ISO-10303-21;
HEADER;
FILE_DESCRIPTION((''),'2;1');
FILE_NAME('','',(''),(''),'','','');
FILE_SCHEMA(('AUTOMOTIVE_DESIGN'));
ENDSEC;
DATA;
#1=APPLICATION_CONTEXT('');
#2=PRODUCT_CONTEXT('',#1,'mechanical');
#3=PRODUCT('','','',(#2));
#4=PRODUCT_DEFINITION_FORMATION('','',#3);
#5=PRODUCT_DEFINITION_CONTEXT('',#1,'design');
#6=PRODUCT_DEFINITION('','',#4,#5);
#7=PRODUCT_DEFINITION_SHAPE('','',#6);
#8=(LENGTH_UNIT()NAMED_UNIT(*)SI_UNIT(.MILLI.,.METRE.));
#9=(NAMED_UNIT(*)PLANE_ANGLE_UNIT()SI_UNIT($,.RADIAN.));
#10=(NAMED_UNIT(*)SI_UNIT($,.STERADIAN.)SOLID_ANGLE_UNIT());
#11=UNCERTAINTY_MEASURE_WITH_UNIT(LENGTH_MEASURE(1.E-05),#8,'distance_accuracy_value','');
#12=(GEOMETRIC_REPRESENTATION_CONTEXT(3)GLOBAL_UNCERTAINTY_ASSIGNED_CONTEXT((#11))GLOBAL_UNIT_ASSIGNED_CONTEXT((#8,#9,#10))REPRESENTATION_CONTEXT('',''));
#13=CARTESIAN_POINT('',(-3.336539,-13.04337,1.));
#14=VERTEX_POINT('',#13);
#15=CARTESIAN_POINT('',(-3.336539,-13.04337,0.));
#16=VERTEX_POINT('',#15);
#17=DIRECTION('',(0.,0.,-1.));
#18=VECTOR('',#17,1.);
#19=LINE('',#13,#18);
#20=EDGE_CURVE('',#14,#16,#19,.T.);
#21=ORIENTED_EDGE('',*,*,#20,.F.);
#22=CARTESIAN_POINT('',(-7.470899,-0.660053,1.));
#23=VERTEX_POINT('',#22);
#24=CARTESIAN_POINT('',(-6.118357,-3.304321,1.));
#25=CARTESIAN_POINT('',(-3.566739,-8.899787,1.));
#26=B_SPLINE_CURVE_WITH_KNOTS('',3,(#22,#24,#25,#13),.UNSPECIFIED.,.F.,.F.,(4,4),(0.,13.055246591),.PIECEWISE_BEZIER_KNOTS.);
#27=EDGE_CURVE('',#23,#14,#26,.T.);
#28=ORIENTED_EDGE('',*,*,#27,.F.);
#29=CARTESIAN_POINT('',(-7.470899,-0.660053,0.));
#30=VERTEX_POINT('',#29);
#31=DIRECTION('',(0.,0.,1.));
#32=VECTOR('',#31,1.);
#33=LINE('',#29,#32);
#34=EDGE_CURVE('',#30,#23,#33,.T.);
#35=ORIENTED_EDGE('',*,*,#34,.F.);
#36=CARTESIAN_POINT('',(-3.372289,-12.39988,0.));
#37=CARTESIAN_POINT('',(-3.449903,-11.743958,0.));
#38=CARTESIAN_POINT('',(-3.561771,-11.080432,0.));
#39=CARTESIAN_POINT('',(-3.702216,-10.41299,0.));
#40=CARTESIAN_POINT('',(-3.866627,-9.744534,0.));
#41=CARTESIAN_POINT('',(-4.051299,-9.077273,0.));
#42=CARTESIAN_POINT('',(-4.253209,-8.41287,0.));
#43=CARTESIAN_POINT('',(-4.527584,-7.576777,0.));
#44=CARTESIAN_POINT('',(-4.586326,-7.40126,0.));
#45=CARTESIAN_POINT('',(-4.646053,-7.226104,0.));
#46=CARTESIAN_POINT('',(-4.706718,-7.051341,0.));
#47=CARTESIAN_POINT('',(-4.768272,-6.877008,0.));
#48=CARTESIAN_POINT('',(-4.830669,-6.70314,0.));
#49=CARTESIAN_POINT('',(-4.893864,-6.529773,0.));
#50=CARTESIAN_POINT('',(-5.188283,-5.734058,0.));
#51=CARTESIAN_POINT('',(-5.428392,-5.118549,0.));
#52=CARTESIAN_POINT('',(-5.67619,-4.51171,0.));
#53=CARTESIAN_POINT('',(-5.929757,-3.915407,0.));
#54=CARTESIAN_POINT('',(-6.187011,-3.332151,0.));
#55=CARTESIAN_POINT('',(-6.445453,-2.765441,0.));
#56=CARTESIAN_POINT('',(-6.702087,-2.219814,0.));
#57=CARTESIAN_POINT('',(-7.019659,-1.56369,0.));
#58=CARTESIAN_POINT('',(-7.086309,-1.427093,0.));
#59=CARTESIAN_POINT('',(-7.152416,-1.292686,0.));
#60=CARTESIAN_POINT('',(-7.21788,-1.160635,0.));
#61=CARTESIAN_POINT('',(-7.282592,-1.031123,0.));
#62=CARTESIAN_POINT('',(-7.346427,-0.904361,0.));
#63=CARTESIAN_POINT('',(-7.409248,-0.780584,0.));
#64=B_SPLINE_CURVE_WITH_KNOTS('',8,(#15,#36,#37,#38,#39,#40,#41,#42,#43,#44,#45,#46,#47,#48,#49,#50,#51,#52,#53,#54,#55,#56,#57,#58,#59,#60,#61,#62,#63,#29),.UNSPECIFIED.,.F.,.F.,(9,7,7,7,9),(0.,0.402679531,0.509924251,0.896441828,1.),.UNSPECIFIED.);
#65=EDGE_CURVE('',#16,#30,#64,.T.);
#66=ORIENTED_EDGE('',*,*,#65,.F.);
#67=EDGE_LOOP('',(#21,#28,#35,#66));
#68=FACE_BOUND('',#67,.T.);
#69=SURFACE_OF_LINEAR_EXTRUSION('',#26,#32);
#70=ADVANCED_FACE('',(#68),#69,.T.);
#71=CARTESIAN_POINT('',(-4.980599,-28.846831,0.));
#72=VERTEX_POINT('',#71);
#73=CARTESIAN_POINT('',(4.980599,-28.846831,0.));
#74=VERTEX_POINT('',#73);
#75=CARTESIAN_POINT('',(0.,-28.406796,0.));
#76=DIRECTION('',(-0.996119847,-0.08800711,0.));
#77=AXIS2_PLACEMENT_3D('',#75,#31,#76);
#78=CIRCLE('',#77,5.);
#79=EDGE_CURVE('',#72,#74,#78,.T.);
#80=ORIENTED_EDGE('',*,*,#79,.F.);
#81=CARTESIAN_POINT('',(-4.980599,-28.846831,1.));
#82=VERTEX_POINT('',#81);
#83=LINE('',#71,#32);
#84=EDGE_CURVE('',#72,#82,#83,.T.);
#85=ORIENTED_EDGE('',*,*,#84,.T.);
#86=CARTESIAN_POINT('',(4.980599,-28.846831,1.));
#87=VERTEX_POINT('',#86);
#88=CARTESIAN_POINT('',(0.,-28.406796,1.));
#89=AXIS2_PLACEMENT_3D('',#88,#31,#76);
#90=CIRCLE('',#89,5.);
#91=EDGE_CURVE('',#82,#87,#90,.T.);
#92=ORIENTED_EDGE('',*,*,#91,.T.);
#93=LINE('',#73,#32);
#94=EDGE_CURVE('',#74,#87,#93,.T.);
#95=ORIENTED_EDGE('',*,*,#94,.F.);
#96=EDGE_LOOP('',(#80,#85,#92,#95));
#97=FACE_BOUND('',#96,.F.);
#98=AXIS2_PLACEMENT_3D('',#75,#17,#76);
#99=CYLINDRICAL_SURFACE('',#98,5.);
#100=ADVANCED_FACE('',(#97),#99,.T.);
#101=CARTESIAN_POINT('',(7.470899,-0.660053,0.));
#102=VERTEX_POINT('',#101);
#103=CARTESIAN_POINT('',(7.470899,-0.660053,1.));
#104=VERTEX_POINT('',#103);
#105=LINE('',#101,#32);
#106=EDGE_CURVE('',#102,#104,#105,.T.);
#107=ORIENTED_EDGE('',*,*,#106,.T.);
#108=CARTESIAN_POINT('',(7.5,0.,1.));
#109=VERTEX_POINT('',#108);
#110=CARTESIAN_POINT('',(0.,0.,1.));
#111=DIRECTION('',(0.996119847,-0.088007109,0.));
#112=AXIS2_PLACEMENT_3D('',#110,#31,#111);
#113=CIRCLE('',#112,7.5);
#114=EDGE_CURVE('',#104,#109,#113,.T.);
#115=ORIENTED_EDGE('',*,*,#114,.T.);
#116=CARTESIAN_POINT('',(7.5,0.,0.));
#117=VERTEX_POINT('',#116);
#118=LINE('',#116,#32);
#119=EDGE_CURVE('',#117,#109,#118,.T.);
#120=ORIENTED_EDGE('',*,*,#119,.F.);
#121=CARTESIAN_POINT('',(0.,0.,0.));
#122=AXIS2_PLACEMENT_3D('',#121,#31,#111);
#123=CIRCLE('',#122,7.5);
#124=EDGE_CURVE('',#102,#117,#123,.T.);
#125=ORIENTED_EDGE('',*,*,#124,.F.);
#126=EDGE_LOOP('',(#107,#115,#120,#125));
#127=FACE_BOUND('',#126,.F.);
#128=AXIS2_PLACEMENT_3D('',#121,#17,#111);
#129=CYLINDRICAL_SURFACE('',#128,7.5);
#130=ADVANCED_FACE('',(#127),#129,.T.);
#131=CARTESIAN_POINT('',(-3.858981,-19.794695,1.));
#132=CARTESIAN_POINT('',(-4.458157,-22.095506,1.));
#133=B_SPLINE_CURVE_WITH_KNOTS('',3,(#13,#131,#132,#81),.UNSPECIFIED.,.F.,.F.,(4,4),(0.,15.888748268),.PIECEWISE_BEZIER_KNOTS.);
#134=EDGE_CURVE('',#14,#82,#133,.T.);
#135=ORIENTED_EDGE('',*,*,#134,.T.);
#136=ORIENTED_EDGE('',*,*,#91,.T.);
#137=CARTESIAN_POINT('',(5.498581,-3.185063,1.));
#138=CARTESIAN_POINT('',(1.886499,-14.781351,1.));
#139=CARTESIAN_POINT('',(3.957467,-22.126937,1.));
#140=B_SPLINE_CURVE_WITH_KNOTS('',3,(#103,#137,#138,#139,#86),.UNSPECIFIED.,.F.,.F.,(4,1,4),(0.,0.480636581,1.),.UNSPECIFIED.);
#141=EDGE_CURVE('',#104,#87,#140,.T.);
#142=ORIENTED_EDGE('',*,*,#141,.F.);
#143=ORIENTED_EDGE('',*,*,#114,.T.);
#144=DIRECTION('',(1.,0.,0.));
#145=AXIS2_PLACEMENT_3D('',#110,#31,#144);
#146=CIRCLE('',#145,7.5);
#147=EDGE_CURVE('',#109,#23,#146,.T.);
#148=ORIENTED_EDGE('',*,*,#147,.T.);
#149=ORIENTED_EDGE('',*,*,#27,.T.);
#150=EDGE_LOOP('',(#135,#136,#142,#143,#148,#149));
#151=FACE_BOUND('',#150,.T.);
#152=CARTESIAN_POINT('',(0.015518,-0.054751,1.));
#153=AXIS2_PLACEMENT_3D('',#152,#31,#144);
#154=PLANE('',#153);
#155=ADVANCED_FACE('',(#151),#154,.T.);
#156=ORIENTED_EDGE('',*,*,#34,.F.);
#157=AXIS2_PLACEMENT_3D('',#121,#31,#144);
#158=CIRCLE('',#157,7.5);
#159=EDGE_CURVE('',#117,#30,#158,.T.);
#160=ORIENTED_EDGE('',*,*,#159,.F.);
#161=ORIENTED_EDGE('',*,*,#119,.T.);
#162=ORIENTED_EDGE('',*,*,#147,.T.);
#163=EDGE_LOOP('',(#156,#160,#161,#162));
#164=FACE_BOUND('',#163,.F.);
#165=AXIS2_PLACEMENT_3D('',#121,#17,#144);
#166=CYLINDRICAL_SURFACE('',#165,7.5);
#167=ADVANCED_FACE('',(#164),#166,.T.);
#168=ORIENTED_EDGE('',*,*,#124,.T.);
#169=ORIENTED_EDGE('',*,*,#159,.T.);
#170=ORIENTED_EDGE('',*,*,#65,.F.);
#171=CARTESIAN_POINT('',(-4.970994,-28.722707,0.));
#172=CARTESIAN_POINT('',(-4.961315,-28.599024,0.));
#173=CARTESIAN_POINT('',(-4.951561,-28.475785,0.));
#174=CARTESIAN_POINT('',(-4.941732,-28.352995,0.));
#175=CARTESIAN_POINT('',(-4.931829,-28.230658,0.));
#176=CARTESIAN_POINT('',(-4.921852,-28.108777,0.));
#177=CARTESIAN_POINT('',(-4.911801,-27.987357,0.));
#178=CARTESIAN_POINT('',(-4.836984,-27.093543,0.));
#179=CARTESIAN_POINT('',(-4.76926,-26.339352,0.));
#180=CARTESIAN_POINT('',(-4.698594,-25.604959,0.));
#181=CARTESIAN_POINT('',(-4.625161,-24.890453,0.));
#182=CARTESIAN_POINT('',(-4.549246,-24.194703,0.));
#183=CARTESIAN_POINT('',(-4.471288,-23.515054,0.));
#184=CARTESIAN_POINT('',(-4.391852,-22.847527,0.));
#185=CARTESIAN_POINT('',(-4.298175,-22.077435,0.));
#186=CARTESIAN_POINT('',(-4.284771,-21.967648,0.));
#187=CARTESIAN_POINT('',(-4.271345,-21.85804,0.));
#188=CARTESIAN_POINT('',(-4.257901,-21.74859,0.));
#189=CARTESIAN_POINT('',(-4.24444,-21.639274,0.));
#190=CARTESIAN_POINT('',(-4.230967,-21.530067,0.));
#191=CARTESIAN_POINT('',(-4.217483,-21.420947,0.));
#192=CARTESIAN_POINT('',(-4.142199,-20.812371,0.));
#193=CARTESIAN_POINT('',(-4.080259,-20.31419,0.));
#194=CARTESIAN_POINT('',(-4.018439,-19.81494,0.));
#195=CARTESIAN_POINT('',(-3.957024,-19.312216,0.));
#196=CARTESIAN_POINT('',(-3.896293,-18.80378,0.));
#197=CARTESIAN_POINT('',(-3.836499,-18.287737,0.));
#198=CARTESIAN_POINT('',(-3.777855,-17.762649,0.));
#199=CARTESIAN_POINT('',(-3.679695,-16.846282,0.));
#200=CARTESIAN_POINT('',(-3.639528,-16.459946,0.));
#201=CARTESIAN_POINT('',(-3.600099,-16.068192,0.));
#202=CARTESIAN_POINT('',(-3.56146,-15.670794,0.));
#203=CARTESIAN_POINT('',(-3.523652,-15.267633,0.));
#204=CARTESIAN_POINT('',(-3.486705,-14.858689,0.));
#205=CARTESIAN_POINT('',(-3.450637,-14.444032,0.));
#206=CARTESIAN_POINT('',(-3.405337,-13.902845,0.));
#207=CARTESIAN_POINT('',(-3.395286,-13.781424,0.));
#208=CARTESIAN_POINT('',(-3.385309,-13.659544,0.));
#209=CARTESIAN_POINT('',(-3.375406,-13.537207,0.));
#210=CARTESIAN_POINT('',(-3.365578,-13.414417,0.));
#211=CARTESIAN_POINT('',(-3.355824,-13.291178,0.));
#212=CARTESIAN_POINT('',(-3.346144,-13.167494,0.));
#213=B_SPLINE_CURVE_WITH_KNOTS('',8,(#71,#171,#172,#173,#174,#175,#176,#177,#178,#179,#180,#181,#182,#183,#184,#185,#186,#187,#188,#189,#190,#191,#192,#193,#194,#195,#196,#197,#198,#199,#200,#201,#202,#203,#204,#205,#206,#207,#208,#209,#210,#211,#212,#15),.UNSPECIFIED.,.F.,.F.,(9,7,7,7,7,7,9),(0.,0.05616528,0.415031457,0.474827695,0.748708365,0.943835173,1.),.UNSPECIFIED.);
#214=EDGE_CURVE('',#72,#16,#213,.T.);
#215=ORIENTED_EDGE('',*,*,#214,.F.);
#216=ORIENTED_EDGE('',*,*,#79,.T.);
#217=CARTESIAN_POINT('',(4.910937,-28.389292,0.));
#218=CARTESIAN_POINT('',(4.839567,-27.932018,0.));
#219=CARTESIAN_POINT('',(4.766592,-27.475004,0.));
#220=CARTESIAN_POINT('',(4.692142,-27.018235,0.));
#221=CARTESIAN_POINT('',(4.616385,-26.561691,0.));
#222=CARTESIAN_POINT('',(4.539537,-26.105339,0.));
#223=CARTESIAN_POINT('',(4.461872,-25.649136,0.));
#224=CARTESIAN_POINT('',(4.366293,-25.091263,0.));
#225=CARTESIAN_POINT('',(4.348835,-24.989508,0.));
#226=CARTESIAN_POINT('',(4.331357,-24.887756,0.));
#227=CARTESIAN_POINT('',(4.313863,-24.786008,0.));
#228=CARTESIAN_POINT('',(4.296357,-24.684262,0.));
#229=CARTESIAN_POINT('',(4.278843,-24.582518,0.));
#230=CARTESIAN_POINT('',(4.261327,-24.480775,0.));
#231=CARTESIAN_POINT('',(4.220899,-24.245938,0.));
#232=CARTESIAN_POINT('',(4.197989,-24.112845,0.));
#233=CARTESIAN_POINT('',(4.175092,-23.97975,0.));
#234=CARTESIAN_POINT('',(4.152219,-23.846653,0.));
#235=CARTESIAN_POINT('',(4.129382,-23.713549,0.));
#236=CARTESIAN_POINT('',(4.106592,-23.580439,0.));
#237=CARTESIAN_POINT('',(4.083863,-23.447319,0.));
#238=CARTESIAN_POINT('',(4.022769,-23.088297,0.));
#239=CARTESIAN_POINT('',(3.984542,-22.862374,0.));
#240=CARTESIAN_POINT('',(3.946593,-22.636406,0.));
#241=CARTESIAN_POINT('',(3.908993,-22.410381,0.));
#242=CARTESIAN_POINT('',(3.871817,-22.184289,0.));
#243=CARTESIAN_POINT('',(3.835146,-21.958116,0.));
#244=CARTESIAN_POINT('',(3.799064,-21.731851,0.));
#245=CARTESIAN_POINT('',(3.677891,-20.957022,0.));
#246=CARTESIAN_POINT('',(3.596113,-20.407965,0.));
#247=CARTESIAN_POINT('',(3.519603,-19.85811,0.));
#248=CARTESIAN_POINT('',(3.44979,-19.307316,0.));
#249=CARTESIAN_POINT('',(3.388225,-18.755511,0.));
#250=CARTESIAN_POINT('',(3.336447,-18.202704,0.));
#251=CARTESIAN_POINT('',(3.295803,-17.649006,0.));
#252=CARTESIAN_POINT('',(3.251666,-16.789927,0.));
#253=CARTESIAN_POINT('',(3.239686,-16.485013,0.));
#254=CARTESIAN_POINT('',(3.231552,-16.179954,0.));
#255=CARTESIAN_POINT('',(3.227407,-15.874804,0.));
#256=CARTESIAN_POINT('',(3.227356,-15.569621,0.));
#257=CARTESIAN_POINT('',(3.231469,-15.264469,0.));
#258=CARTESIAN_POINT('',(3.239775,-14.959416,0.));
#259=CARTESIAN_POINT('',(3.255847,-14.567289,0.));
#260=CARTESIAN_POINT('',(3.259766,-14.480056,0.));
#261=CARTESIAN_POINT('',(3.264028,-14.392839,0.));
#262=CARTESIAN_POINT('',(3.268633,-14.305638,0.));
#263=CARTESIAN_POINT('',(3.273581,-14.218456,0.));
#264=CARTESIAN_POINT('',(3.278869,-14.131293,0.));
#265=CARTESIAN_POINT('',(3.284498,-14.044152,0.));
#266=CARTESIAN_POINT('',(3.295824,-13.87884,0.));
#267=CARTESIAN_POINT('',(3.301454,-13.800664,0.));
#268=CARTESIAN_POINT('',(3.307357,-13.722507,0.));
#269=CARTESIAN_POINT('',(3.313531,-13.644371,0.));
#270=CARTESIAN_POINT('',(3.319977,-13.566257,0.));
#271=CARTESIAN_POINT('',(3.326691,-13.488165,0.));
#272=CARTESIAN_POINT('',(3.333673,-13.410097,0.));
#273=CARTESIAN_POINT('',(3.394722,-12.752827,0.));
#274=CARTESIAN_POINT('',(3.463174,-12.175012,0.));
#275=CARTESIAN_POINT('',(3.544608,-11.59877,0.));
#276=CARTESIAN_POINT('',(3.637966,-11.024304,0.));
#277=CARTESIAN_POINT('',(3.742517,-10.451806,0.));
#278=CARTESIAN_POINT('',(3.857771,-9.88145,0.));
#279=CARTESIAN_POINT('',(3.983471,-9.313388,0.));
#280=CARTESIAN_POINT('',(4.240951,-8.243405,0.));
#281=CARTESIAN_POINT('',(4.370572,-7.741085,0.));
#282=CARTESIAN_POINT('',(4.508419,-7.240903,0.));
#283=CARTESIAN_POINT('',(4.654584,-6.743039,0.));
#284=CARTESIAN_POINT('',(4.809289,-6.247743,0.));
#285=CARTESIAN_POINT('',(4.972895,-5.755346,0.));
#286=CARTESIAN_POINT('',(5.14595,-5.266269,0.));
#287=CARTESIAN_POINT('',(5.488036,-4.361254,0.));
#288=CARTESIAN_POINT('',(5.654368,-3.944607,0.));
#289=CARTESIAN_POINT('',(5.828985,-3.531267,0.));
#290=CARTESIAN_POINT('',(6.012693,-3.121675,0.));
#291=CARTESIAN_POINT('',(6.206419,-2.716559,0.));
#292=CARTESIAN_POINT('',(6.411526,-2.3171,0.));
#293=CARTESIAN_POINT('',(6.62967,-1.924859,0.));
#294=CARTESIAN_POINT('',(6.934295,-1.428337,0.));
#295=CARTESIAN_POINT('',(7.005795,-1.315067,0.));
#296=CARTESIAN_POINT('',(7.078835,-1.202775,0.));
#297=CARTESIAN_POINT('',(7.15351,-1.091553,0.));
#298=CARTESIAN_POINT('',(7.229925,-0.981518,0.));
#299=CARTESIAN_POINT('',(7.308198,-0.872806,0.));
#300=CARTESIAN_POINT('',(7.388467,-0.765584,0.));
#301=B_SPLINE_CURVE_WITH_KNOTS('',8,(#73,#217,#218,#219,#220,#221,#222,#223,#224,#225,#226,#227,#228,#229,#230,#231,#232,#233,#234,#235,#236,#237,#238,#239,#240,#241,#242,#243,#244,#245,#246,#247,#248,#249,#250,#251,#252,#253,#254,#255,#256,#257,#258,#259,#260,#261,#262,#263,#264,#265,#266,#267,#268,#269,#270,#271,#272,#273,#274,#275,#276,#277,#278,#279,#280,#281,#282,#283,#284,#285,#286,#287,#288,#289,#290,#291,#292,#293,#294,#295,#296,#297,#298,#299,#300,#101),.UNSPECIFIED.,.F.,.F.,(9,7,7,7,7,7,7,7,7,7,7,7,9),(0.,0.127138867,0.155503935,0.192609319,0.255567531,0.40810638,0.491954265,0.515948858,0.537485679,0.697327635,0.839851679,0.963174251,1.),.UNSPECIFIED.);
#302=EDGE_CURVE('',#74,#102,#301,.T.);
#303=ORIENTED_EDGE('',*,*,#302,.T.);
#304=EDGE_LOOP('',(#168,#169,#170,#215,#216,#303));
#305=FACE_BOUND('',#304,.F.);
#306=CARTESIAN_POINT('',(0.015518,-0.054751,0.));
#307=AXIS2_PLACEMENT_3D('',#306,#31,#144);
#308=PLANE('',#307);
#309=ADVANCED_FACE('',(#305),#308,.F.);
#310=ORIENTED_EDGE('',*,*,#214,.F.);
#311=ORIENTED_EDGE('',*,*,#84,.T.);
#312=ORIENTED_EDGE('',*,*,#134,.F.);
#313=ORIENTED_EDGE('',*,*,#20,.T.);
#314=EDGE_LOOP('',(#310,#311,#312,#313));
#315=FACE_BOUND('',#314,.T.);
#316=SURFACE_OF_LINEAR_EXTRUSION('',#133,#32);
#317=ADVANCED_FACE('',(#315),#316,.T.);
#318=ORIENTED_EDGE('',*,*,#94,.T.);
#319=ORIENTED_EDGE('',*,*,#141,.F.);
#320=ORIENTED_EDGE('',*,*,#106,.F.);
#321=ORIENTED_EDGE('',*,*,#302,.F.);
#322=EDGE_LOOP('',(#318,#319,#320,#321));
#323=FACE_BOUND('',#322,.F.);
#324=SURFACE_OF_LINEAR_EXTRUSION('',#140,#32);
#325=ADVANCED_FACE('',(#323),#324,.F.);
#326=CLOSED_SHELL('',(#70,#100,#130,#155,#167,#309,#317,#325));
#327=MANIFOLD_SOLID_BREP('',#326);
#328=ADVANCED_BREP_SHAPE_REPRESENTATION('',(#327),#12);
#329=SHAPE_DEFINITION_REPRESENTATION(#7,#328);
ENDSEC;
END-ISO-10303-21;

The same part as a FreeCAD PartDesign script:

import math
import FreeCAD as App
import Part
import Sketcher

V = App.Vector

doc = App.newDocument("Part")
body = doc.addObject("PartDesign::Body", "Body")

# Sketch on XY plane
sketch1 = body.newObject("Sketcher::SketchObject", "Sketch")
sketch1.AttachmentSupport = (doc.getObject("XY_Plane"), [""])
sketch1.MapMode = "FlatFace"
sketch1.addGeometry(Part.ArcOfCircle(Part.Circle(V(0, 0, 0), V(0, 0, 1), 7.5), math.radians(-5.05), math.radians(0)), False)
sketch1.addGeometry(Part.ArcOfCircle(Part.Circle(V(0, 0, 0), V(0, 0, 1), 7.5), math.radians(0), math.radians(185)), False)
sketch1.addGeometry(Part.LineSegment(V(-7.5, -0.7, 0), V(-5, -28.8, 0)), False)
sketch1.addGeometry(Part.ArcOfCircle(Part.Circle(V(0, -28.4, 0), V(0, 0, 1), 5), math.radians(-175), math.radians(-5)), False)
sketch1.addGeometry(Part.LineSegment(V(5, -28.8, 0), V(7.5, -0.7, 0)), False)
sketch1.addConstraint(Sketcher.Constraint("Tangent", 0, 2, 1, 1))
sketch1.addConstraint(Sketcher.Constraint("Tangent", 1, 2, 2, 1))
sketch1.addConstraint(Sketcher.Constraint("Tangent", 2, 2, 3, 1))
sketch1.addConstraint(Sketcher.Constraint("Tangent", 3, 2, 4, 1))
sketch1.addConstraint(Sketcher.Constraint("Tangent", 4, 2, 0, 1))
sketch1.addConstraint(Sketcher.Constraint("Coincident", 0, 3, -1, 1))
sketch1.addConstraint(Sketcher.Constraint("Equal", 0, 1))
sketch1.addConstraint(Sketcher.Constraint("PointOnObject", 3, 3, -2))
sketch1.addConstraint(Sketcher.Constraint("PointOnObject", 0, 2, -1))
sketch1.addConstraint(Sketcher.Constraint("Radius", 3, 5.0))
sketch1.addConstraint(Sketcher.Constraint("Radius", 0, 7.5))
sketch1.addConstraint(Sketcher.Constraint("DistanceY", 2, 2, -1, 1, 28.846831))
pad1 = body.newObject("PartDesign::Pad", "Pad")
pad1.Profile = sketch1
pad1.Length = 1

# Sketch on XY plane
sketch2 = body.newObject("Sketcher::SketchObject", "Sketch001")
sketch2.AttachmentSupport = (doc.getObject("XY_Plane"), [""])
sketch2.MapMode = "FlatFace"
sketch2.AttachmentOffset = App.Placement(V(0, 0, 1), App.Rotation())
sketch2.addGeometry(Part.LineSegment(V(4.980599, -28.846831, 0), V(7.470899, -0.660053, 0)), False)
sketch2.addGeometry(Part.BSplineCurve([V(7.470899, -0.660053, 0), V(5.498581, -3.185063, 0), V(1.886499, -14.781351, 0), V(3.957467, -22.126937, 0), V(4.980599, -28.846831, 0)], [4, 1, 4], [0, 0.480636581, 1], False, 3, [1, 1, 1, 1, 1], False), False)
sketch2.addGeometry(Part.BSplineCurve([V(-7.470899, -0.660053, 0), V(-6.118357, -3.304321, 0), V(-3.566739, -8.899787, 0), V(-3.336539, -13.04337, 0)], [4, 4], [0, 13.055246591], False, 3, [1, 1, 1, 1], False), False)
sketch2.addGeometry(Part.LineSegment(V(-7.470899, -0.660053, 0), V(-4.980599, -28.846831, 0)), False)
sketch2.addGeometry(Part.BSplineCurve([V(-3.336539, -13.04337, 0), V(-3.858981, -19.794695, 0), V(-4.458157, -22.095506, 0), V(-4.980599, -28.846831, 0)], [4, 4], [0, 15.888748268], False, 3, [1, 1, 1, 1], False), False)
sketch2.addConstraint(Sketcher.Constraint("Block", 1))
sketch2.addConstraint(Sketcher.Constraint("Block", 2))
sketch2.addConstraint(Sketcher.Constraint("Block", 4))
sketch2.addConstraint(Sketcher.Constraint("Coincident", 0, 1, 1, 2))
sketch2.addConstraint(Sketcher.Constraint("Coincident", 1, 1, 0, 2))
sketch2.addConstraint(Sketcher.Constraint("Coincident", 2, 1, 3, 1))
sketch2.addConstraint(Sketcher.Constraint("Coincident", 3, 2, 4, 2))
pocket1 = body.newObject("PartDesign::Pocket", "Pocket")
pocket1.Profile = sketch2
pocket1.Type = "ThroughAll"

doc.recompute()
